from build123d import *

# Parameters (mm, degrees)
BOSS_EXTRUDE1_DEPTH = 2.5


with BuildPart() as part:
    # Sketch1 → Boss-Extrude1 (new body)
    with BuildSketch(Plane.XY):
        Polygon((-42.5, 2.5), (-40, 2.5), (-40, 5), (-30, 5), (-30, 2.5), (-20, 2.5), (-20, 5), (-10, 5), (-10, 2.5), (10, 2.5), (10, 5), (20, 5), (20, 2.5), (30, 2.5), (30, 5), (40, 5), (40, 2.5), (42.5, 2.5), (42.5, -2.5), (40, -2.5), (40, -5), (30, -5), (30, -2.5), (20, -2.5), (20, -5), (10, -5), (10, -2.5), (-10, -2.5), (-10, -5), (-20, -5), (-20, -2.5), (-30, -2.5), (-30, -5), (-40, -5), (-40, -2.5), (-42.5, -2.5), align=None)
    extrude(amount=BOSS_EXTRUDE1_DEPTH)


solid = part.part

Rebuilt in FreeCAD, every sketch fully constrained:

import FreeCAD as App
import Part
import Sketcher
Q = App.Units.Quantity


def add_polygon(sketch, points):
    """Adds a closed chain of lines whose ends are joined by coincident constraints."""
    first, n = sketch.GeometryCount, len(points)
    for a, b in zip(points, points[1:] + points[:1]):
        sketch.addGeometry(Part.LineSegment(App.Vector(*a, 0), App.Vector(*b, 0)), False)
    for i in range(n):
        sketch.addConstraint(Sketcher.Constraint("Coincident", first + i, 2, first + (i + 1) % n, 1))

doc = App.newDocument("Part")
body = doc.addObject("PartDesign::Body", "Body")

sketch1 = body.newObject("Sketcher::SketchObject", "Sketch")
sketch1.AttachmentSupport = (doc.getObject("XY_Plane"), [""])
sketch1.MapMode = "FlatFace"
add_polygon(sketch1, [(-40, 2.5), (-42.5, 2.5), (-42.5, -2.5), (-40, -2.5), (-40, -5), (-30, -5), (-30, -2.5), (-20, -2.5), (-20, -5), (-10, -5), (-10, -2.5), (10, -2.5), (10, -5), (20, -5), (20, -2.5), (30, -2.5), (30, -5), (40, -5), (40, -2.5), (42.5, -2.5), (42.5, 2.5), (40, 2.5), (40, 5), (30, 5), (30, 2.5), (20, 2.5), (20, 5), (10, 5), (10, 2.5), (-10, 2.5), (-10, 5), (-20, 5), (-20, 2.5), (-30, 2.5), (-30, 5), (-40, 5)])
sketch1.addConstraint(Sketcher.Constraint("Horizontal", 0))
sketch1.addConstraint(Sketcher.Constraint("Vertical", 1))
sketch1.addConstraint(Sketcher.Constraint("Horizontal", 2))
sketch1.addConstraint(Sketcher.Constraint("Vertical", 3))
sketch1.addConstraint(Sketcher.Constraint("Horizontal", 4))
sketch1.addConstraint(Sketcher.Constraint("Vertical", 5))
sketch1.addConstraint(Sketcher.Constraint("Horizontal", 6))
sketch1.addConstraint(Sketcher.Constraint("Vertical", 7))
sketch1.addConstraint(Sketcher.Constraint("Horizontal", 8))
sketch1.addConstraint(Sketcher.Constraint("Vertical", 9))
sketch1.addConstraint(Sketcher.Constraint("Horizontal", 10))
sketch1.addConstraint(Sketcher.Constraint("Vertical", 11))
sketch1.addConstraint(Sketcher.Constraint("Horizontal", 12))
sketch1.addConstraint(Sketcher.Constraint("Vertical", 13))
sketch1.addConstraint(Sketcher.Constraint("Horizontal", 14))
sketch1.addConstraint(Sketcher.Constraint("Vertical", 15))
sketch1.addConstraint(Sketcher.Constraint("Horizontal", 16))
sketch1.addConstraint(Sketcher.Constraint("Vertical", 17))
sketch1.addConstraint(Sketcher.Constraint("Horizontal", 18))
sketch1.addConstraint(Sketcher.Constraint("Vertical", 19))
sketch1.addConstraint(Sketcher.Constraint("Horizontal", 20))
sketch1.addConstraint(Sketcher.Constraint("Vertical", 21))
sketch1.addConstraint(Sketcher.Constraint("Horizontal", 22))
sketch1.addConstraint(Sketcher.Constraint("Vertical", 23))
sketch1.addConstraint(Sketcher.Constraint("Horizontal", 24))
sketch1.addConstraint(Sketcher.Constraint("Vertical", 25))
sketch1.addConstraint(Sketcher.Constraint("Horizontal", 26))
sketch1.addConstraint(Sketcher.Constraint("Vertical", 27))
sketch1.addConstraint(Sketcher.Constraint("Horizontal", 28))
sketch1.addConstraint(Sketcher.Constraint("Vertical", 29))
sketch1.addConstraint(Sketcher.Constraint("Horizontal", 30))
sketch1.addConstraint(Sketcher.Constraint("Vertical", 31))
sketch1.addConstraint(Sketcher.Constraint("Horizontal", 32))
sketch1.addConstraint(Sketcher.Constraint("Vertical", 33))
sketch1.addConstraint(Sketcher.Constraint("Horizontal", 34))
sketch1.addConstraint(Sketcher.Constraint("Vertical", 35))
sketch1.addConstraint(Sketcher.Constraint("Symmetric", 0, 2, 18, 2, -1, 1))
sketch1.addConstraint(Sketcher.Constraint("Symmetric", 2, 2, 20, 2, -1, 1))
sketch1.addConstraint(Sketcher.Constraint("Symmetric", 4, 2, 22, 2, -1, 1))
sketch1.addConstraint(Sketcher.Constraint("Symmetric", 6, 2, 24, 2, -1, 1))
sketch1.addConstraint(Sketcher.Constraint("Symmetric", 8, 2, 26, 2, -1, 1))
sketch1.addConstraint(Sketcher.Constraint("Symmetric", 10, 2, 28, 2, -1, 1))
sketch1.addConstraint(Sketcher.Constraint("Symmetric", 12, 2, 30, 2, -1, 1))
sketch1.addConstraint(Sketcher.Constraint("Symmetric", 14, 2, 32, 2, -1, 1))
sketch1.addConstraint(Sketcher.Constraint("Symmetric", 16, 2, 34, 2, -1, 1))
sketch1.addConstraint(Sketcher.Constraint("Symmetric", 8, 2, 11, 2, -2))
sketch1.addConstraint(Sketcher.Constraint("Symmetric", 6, 2, 13, 2, -2))
sketch1.addConstraint(Sketcher.Constraint("Symmetric", 4, 2, 15, 2, -2))
sketch1.addConstraint(Sketcher.Constraint("Symmetric", 2, 2, 17, 2, -2))
sketch1.addConstraint(Sketcher.Constraint("Horizontal", 2, 2, 5, 2))
sketch1.addConstraint(Sketcher.Constraint("Horizontal", 4, 2, 7, 2))
sketch1.addConstraint(Sketcher.Constraint("Horizontal", 6, 2, 9, 2))
sketch1.addConstraint(Sketcher.Constraint("Equal", 4, 6))
sketch1.addConstraint(Sketcher.Constraint("Equal", 6, 8))
sketch1.addConstraint(Sketcher.Constraint("Equal", 20, 3))
sketch1.addConstraint(Sketcher.Constraint("DistanceX", 4, 1, 4, 2, Q("10 mm")))
sketch1.addConstraint(Sketcher.Constraint("DistanceX", 10, 1, 10, 2, Q("20 mm")))
sketch1.addConstraint(Sketcher.Constraint("DistanceY", 1, 2, 1, 1, Q("5 mm")))
sketch1.addConstraint(Sketcher.Constraint("DistanceX", 0, 2, 0, 1, Q("2.5 mm")))
pad1 = body.newObject("PartDesign::Pad", "Pad")
pad1.Profile = sketch1
pad1.Length = 2.5

doc.recompute()
